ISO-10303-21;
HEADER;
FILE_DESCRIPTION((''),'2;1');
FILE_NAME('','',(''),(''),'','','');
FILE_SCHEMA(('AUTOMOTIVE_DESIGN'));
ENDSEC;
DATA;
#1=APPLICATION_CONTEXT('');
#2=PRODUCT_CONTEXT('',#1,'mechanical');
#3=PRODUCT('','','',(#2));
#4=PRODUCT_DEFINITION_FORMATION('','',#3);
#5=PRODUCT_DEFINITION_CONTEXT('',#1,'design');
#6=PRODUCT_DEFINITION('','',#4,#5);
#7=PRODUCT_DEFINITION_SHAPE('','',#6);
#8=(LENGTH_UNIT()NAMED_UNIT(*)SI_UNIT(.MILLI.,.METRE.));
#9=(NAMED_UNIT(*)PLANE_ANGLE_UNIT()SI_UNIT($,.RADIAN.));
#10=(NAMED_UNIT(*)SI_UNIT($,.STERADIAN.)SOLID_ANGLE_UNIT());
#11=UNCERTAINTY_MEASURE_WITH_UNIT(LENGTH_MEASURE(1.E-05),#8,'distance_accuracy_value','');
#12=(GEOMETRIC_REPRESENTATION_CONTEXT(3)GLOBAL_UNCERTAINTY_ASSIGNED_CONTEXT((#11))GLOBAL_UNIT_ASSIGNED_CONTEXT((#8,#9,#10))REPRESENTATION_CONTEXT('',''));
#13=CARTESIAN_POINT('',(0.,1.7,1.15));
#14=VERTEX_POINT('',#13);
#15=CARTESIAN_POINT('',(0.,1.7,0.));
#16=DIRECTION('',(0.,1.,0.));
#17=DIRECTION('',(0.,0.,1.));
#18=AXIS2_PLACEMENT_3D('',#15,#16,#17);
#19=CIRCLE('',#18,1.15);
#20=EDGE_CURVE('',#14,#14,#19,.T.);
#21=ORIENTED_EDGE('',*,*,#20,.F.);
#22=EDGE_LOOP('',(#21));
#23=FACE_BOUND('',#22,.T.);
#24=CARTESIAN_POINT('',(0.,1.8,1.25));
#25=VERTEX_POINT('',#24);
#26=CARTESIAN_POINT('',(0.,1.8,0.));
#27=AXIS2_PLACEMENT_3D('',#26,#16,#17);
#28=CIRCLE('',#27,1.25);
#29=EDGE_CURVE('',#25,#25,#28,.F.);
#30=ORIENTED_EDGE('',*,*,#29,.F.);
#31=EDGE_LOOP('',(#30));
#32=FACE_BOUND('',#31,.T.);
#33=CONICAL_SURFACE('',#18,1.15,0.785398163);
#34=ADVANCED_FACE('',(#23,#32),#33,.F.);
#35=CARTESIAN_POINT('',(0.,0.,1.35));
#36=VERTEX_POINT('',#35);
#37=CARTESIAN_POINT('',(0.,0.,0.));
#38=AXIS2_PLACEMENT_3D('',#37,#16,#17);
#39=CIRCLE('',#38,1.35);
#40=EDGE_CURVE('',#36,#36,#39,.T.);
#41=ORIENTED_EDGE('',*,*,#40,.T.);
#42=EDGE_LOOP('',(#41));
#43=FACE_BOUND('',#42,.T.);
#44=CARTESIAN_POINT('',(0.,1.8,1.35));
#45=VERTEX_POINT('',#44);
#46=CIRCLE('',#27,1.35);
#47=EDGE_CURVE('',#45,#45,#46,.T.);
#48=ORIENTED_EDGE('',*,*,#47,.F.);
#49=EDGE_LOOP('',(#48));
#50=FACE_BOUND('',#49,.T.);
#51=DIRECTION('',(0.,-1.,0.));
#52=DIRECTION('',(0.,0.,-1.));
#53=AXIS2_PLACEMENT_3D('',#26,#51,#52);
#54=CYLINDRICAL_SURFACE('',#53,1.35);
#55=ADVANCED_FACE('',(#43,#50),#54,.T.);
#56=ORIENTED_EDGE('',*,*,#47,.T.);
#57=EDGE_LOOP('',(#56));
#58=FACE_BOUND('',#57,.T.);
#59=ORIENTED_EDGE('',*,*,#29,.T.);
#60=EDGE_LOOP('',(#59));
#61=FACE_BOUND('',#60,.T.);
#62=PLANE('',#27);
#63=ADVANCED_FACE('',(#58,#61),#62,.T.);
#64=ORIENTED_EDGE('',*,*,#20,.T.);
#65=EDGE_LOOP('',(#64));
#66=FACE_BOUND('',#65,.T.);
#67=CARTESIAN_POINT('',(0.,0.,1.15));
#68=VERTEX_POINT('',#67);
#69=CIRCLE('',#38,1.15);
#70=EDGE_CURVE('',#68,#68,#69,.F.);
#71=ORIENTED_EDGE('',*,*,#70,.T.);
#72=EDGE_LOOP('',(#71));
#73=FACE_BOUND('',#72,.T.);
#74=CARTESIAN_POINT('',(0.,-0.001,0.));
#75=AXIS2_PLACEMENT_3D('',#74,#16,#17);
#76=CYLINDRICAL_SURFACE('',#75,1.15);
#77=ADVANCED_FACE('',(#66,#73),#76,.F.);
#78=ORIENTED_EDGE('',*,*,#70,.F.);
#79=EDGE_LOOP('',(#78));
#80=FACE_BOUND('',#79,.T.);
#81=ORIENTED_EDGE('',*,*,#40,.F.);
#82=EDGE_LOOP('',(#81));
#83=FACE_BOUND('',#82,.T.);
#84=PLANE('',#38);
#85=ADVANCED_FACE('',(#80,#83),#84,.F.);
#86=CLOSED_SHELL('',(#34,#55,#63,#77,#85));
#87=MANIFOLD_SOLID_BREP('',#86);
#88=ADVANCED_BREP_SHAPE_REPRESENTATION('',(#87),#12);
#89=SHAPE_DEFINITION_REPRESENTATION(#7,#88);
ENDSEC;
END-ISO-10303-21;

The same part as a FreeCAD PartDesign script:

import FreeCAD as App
import Part
import Sketcher
from FreeCAD import Vector
Q = App.Units.Quantity


def edges_at(feature, points):
    """Names of the edges that pass closest to the given points."""
    edges = feature.Shape.Edges
    near = lambda p: min(range(len(edges)), key=lambda i: edges[i].distToShape(Part.Vertex(*p))[0])
    return sorted({f"Edge{near(p) + 1}" for p in points})

doc = App.newDocument("Part")
body = doc.addObject("PartDesign::Body", "Body")

# Sketch on XZ plane
sketch1 = body.newObject("Sketcher::SketchObject", "Sketch")
sketch1.AttachmentSupport = (doc.getObject("XZ_Plane"), [""])
sketch1.MapMode = "FlatFace"
sketch1.addGeometry(Part.Circle(Vector(0, 0, 0), Vector(0, 0, 1), 1.4), False)
sketch1.addConstraint(Sketcher.Constraint("Coincident", 0, 3, -1, 1))
sketch1.addConstraint(Sketcher.Constraint("Diameter", 0, Q("2.7 mm")))
pad1 = body.newObject("PartDesign::Pad", "Pad")
pad1.Profile = sketch1
pad1.Length = 1.8
pad1.Reversed = True

# Sketch on XZ plane
sketch2 = body.newObject("Sketcher::SketchObject", "Sketch001")
sketch2.AttachmentSupport = (doc.getObject("XZ_Plane"), [""])
sketch2.MapMode = "FlatFace"
sketch2.AttachmentOffset = App.Placement(Vector(0, 0, -1.8), App.Rotation())
sketch2.addGeometry(Part.Circle(Vector(0, 0, 0), Vector(0, 0, 1), 1.1), False)
sketch2.addConstraint(Sketcher.Constraint("Coincident", 0, 3, -1, 1))
sketch2.addConstraint(Sketcher.Constraint("Diameter", 0, Q("2.3 mm")))
pocket1 = body.newObject("PartDesign::Pocket", "Pocket")
pocket1.Profile = sketch2
pocket1.Type = "UpToFirst"
pocket1.Reversed = True
doc.recompute()

chamfer = body.newObject("PartDesign::Chamfer", "Chamfer")
chamfer.Base = (pocket1, edges_at(pocket1, [(-1.15, 1.8, 0)]))
chamfer.Size = 0.1

doc.recompute()
